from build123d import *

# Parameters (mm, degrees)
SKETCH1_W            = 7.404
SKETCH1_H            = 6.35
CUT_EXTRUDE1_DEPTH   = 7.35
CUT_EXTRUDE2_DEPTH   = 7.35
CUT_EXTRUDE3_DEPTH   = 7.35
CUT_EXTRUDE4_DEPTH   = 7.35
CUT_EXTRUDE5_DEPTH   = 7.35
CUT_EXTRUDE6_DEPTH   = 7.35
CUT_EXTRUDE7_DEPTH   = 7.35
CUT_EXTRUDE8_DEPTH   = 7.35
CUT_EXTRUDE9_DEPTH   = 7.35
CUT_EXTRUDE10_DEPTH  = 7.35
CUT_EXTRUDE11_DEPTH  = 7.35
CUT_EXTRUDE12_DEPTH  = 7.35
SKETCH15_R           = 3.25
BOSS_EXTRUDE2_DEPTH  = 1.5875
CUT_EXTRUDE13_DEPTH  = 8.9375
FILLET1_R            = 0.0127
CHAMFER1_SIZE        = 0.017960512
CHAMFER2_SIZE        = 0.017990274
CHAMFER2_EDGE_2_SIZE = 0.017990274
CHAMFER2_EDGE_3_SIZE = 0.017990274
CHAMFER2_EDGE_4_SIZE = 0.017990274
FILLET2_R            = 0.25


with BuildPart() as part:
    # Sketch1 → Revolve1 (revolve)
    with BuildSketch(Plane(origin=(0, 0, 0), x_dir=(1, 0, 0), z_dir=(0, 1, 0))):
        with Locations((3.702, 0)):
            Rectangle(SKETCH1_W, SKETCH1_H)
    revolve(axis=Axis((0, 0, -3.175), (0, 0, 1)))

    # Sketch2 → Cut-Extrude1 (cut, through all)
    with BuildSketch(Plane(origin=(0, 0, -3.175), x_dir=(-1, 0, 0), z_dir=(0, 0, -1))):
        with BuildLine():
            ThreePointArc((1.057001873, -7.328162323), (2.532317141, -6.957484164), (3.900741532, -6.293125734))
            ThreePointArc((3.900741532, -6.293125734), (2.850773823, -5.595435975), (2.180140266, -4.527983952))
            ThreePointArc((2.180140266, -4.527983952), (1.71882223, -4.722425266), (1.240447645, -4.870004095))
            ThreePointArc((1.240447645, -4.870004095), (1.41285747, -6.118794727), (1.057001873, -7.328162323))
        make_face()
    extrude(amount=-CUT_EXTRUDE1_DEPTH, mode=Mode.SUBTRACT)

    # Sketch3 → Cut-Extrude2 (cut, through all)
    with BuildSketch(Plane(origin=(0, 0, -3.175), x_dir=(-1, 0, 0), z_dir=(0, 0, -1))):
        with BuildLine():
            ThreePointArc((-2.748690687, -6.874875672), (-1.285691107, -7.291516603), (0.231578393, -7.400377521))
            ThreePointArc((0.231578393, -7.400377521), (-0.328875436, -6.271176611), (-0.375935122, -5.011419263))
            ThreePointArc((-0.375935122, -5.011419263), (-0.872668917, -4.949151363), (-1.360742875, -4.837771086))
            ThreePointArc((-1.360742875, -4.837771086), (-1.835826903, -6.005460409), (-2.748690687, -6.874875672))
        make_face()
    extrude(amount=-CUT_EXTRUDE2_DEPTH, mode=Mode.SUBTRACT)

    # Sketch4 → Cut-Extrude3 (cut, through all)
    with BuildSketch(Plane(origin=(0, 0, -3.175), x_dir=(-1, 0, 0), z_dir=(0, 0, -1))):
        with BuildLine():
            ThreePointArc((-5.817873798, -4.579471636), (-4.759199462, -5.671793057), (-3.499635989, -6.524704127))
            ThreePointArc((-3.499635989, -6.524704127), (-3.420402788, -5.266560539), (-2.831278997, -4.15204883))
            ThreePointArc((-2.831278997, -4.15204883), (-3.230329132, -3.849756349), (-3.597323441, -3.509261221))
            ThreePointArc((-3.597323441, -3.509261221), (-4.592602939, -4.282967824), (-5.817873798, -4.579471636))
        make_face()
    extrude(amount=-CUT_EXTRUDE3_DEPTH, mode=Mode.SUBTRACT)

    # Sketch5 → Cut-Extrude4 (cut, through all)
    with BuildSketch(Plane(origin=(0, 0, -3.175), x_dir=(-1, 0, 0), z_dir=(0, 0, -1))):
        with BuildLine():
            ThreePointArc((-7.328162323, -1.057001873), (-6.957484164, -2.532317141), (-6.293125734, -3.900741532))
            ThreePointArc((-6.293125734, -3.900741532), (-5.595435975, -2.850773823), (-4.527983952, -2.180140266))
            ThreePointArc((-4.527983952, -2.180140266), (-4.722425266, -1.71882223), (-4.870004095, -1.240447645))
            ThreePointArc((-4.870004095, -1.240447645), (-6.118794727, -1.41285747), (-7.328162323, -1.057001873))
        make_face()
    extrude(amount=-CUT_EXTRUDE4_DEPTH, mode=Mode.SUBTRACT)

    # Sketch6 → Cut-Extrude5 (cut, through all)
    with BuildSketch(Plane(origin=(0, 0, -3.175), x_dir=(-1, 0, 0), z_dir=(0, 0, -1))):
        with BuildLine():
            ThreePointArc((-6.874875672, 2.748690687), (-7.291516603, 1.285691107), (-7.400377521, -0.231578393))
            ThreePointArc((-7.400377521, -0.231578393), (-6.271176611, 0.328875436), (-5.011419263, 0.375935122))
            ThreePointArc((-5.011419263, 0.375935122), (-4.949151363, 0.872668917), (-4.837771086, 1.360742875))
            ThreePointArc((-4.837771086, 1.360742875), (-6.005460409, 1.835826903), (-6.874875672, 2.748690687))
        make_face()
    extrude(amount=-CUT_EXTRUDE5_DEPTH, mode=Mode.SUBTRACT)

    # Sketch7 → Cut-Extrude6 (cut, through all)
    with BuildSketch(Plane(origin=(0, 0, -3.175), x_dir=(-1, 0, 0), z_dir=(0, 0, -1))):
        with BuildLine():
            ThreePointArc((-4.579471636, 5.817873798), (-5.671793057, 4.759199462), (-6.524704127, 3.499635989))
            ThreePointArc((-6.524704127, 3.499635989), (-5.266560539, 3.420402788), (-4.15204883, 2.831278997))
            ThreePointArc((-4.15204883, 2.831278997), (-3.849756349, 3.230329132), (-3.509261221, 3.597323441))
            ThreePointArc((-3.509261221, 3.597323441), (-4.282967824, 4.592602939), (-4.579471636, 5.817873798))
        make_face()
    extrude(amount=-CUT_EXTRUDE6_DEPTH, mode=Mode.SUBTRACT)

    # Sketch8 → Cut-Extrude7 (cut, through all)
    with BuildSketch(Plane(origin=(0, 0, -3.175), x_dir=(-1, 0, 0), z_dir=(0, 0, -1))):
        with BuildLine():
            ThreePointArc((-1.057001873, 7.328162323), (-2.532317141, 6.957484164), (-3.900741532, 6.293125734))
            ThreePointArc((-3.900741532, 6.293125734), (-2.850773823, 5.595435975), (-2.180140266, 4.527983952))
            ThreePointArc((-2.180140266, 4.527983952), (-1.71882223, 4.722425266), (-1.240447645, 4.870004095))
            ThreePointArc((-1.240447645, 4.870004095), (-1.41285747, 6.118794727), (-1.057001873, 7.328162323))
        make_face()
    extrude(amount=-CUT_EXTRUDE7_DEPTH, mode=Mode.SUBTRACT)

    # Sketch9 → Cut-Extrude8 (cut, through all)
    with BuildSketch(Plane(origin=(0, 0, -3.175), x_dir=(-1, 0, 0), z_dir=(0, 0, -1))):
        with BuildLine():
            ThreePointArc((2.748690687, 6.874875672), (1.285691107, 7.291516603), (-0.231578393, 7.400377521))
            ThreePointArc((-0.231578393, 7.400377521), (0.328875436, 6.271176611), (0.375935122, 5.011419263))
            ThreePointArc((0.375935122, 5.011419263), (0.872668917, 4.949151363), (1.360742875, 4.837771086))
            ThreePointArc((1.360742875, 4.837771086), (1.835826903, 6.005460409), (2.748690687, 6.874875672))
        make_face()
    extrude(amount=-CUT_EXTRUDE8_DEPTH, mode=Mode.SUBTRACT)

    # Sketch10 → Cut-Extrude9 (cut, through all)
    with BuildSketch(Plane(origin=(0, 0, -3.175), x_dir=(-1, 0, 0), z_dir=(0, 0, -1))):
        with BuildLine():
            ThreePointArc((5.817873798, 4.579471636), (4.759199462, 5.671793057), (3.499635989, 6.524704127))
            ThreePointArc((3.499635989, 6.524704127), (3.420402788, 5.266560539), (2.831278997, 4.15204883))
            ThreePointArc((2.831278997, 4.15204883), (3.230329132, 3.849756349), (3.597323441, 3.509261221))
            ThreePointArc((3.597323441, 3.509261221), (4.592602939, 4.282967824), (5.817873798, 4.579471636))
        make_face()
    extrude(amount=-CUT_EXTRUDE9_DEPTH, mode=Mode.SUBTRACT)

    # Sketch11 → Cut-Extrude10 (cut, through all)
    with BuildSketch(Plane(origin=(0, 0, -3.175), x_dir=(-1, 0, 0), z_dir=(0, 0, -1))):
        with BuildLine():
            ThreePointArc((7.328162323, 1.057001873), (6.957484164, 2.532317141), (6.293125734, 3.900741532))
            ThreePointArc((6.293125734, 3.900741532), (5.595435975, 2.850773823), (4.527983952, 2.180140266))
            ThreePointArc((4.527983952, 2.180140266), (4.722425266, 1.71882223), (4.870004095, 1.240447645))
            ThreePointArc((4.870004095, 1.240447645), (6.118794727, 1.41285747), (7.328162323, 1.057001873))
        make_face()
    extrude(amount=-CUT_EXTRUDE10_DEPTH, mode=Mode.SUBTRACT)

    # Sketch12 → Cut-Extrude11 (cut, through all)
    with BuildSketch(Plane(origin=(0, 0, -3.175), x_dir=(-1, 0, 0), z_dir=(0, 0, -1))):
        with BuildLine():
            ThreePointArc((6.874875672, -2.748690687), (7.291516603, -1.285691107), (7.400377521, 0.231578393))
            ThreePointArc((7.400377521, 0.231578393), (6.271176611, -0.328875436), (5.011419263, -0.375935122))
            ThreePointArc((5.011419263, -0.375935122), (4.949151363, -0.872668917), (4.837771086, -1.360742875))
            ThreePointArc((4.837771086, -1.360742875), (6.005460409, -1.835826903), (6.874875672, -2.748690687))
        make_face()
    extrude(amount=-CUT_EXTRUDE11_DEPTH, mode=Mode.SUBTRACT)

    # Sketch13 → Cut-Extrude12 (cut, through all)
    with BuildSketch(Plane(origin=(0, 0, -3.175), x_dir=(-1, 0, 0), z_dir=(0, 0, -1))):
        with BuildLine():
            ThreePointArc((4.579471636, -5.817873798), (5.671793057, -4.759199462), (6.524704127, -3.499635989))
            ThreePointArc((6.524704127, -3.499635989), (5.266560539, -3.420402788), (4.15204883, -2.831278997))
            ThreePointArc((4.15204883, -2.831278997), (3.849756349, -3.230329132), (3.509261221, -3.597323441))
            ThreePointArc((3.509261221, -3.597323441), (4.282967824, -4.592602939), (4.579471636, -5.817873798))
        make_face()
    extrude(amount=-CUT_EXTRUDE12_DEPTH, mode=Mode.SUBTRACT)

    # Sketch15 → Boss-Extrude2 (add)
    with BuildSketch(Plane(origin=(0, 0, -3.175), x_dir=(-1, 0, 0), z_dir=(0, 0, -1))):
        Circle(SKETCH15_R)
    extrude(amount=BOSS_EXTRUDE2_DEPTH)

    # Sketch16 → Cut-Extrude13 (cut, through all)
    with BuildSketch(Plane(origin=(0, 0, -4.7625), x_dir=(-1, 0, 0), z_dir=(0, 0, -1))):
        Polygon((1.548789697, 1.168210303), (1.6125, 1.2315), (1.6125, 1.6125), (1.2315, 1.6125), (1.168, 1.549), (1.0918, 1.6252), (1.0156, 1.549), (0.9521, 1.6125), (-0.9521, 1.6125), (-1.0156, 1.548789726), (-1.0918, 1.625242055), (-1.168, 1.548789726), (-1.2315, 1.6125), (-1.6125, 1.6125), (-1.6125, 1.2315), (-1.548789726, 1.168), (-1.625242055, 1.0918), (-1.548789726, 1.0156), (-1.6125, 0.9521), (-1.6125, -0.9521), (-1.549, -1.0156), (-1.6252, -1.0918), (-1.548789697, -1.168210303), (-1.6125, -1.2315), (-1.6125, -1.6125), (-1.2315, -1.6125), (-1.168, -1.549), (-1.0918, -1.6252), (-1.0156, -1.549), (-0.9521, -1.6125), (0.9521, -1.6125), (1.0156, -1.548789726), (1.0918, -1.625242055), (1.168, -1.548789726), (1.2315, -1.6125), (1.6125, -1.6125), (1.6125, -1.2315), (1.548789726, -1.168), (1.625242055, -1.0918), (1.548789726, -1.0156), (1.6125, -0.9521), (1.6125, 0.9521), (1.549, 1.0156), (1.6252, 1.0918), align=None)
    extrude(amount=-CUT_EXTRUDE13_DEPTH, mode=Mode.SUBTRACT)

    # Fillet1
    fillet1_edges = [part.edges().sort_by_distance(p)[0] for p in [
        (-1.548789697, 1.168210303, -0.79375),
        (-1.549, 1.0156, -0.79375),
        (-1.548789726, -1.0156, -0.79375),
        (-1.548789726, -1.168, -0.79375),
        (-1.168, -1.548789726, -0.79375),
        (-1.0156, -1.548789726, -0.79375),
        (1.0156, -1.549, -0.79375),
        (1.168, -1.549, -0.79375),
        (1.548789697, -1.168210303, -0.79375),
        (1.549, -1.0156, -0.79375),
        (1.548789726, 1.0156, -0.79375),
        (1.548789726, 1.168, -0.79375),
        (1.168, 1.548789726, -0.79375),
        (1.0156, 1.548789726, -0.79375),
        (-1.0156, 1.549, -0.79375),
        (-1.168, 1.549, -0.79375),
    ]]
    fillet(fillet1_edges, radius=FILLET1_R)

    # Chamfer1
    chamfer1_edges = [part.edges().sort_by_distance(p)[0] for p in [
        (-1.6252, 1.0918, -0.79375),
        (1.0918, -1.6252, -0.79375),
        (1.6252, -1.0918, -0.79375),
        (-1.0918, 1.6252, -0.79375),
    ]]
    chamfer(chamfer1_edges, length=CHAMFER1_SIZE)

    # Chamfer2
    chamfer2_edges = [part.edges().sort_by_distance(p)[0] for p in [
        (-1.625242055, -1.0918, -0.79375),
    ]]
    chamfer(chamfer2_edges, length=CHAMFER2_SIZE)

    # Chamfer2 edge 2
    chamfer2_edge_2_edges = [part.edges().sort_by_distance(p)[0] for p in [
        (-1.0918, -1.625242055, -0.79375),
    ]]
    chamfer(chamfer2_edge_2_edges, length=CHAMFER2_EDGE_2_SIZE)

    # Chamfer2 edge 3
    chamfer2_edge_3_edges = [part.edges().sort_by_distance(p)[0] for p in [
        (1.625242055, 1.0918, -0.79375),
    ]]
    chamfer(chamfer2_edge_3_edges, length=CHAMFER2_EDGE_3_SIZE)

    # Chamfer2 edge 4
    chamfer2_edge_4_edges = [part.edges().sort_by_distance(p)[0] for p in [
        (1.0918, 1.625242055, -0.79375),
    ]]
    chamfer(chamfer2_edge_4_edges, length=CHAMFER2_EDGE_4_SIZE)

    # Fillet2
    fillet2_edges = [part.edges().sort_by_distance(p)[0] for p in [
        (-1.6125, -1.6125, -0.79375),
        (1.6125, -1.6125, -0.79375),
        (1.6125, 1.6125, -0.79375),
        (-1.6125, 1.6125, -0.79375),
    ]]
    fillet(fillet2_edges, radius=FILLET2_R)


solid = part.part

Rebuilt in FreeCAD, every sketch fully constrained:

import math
import FreeCAD as App
import Part
import Sketcher
Q = App.Units.Quantity


def edges_at(feature, points):
    """Names of the edges that pass closest to the given points."""
    edges = feature.Shape.Edges
    near = lambda p: min(range(len(edges)), key=lambda i: edges[i].distToShape(Part.Vertex(*p))[0])
    return sorted({f"Edge{near(p) + 1}" for p in points})

doc = App.newDocument("Part")
params = doc.addObject("Spreadsheet::Sheet", "Params")
for row, (alias, value) in enumerate([
    ("sketch1_height", "0.25 in"),
    ("revolution_angle", "360 deg"),
    ("pad1_length", "0.0625 in"),
    ("sketch15_width", "0.015 in"),
    ("fillet_radius", "0.0005 in"),
    ("chamfer_size", "0.017961 mm"),
    ("chamfer2_size", "0.01799 mm"),
    ("chamfer3_size", "0.01799 mm"),
    ("chamfer4_size", "0.01799 mm"),
    ("chamfer5_size", "0.01799 mm"),
    ("fillet2_radius", "0.25 mm"),
], start=1):
    params.set(f"A{row}", alias)
    params.set(f"B{row}", "=" + value)
    params.setAlias(f"B{row}", alias)

body = doc.addObject("PartDesign::Body", "Body")

# Sketch on XZ plane
sketch1 = body.newObject("Sketcher::SketchObject", "Sketch")
sketch1.AttachmentSupport = (doc.getObject("XZ_Plane"), [""])
sketch1.MapMode = "FlatFace"
sketch1.addGeometry(Part.LineSegment(App.Vector(0, -3, 0), App.Vector(0, 3, 0)), False)
sketch1.addGeometry(Part.LineSegment(App.Vector(0, 3, 0), App.Vector(7, 3, 0)), False)
sketch1.addGeometry(Part.LineSegment(App.Vector(7, 3, 0), App.Vector(7, -3, 0)), False)
sketch1.addGeometry(Part.LineSegment(App.Vector(7, -3, 0), App.Vector(0, -3, 0)), False)
sketch1.addConstraint(Sketcher.Constraint("Coincident", 0, 2, 1, 1))
sketch1.addConstraint(Sketcher.Constraint("Coincident", 1, 2, 2, 1))
sketch1.addConstraint(Sketcher.Constraint("Coincident", 2, 2, 3, 1))
sketch1.addConstraint(Sketcher.Constraint("Coincident", 3, 2, 0, 1))
sketch1.addConstraint(Sketcher.Constraint("Vertical", 0))
sketch1.addConstraint(Sketcher.Constraint("Horizontal", 1))
sketch1.addConstraint(Sketcher.Constraint("Vertical", 2))
sketch1.addConstraint(Sketcher.Constraint("Horizontal", 3))
sketch1.addConstraint(Sketcher.Constraint("Symmetric", 0, 2, 3, 2, -1, 1))
sketch1.addConstraint(Sketcher.Constraint("DistanceY", 0, 1, 0, 2, Q("0.25 in")))
sketch1.addConstraint(Sketcher.Constraint("DistanceX", 1, 1, 1, 2, Q("7.404 mm")))
sketch1.setExpression("Constraints[9]", "Params.sketch1_height")
revolution = body.newObject("PartDesign::Revolution", "Revolution")
revolution.Profile = sketch1
revolution.ReferenceAxis = (sketch1, ["V_Axis"])
revolution.setExpression("Angle", "Params.revolution_angle")

# Sketch on XY plane
sketch2 = body.newObject("Sketcher::SketchObject", "Sketch001")
sketch2.AttachmentSupport = (doc.getObject("XY_Plane"), [""])
sketch2.MapMode = "FlatFace"
sketch2.AttachmentOffset = App.Placement(App.Vector(0, 0, -0.125 * 25.4), App.Rotation())
sketch2.addGeometry(Part.ArcOfCircle(Part.Circle(App.Vector(0, 0, 0), App.Vector(0, 0, 1), 7.4), math.radians(-122), math.radians(-98)), False)
sketch2.addGeometry(Part.ArcOfCircle(Part.Circle(App.Vector(-5, -3.5, 0), App.Vector(0, 0, 1), 3), math.radians(-69), math.radians(-20)), False)
sketch2.addGeometry(Part.ArcOfCircle(Part.Circle(App.Vector(0, 0, 0), App.Vector(0, 0, 1), 5), math.radians(-115.71), math.radians(-104.29)), False)
sketch2.addGeometry(Part.ArcOfCircle(Part.Circle(App.Vector(1.6, -5.9, 0), App.Vector(0, 0, 1), 3), math.radians(160), math.radians(209)), False)
sketch2.addConstraint(Sketcher.Constraint("Coincident", 0, 1, 1, 1))
sketch2.addConstraint(Sketcher.Constraint("Coincident", 1, 2, 2, 1))
sketch2.addConstraint(Sketcher.Constraint("Coincident", 2, 2, 3, 1))
sketch2.addConstraint(Sketcher.Constraint("Coincident", 3, 2, 0, 2))
sketch2.addConstraint(Sketcher.Constraint("Coincident", 0, 3, -1, 1))
sketch2.addConstraint(Sketcher.Constraint("Coincident", 2, 3, -1, 1))
sketch2.addConstraint(Sketcher.Constraint("Equal", 1, 3))
sketch2.addConstraint(Sketcher.Constraint("Radius", 0, Q("7.404 mm")))
sketch2.addConstraint(Sketcher.Constraint("Radius", 1, Q("3 mm")))
sketch2.addConstraint(Sketcher.Constraint("Radius", 2, Q("5.0255 mm")))
sketch2.addConstraint(Sketcher.Constraint("DistanceX", 3, 2, -1, 1, Q("1.057002 mm")))
sketch2.addConstraint(Sketcher.Constraint("DistanceX", 0, 1, 1, 2, Q("1.720601 mm")))
sketch2.addConstraint(Sketcher.Constraint("DistanceX", 0, 1, -1, 1, Q("3.900742 mm")))
sketch2.addConstraint(Sketcher.Constraint("DistanceX", 1, 3, 3, 3, Q("6.577848 mm")))
pocket1 = body.newObject("PartDesign::Pocket", "Pocket")
pocket1.Profile = sketch2
pocket1.Type = "ThroughAll"
pocket1.Reversed = True

# Sketch on XY plane
sketch3 = body.newObject("Sketcher::SketchObject", "Sketch002")
sketch3.AttachmentSupport = (doc.getObject("XY_Plane"), [""])
sketch3.MapMode = "FlatFace"
sketch3.AttachmentOffset = App.Placement(App.Vector(0, 0, -0.125 * 25.4), App.Rotation())
sketch3.addGeometry(Part.ArcOfCircle(Part.Circle(App.Vector(0, 0, 0), App.Vector(0, 0, 1), 7.4), math.radians(-92), math.radians(-68)), False)
sketch3.addGeometry(Part.ArcOfCircle(Part.Circle(App.Vector(-2.6, -5.5, 0), App.Vector(0, 0, 1), 3), math.radians(-39), math.radians(10)), False)
sketch3.addGeometry(Part.ArcOfCircle(Part.Circle(App.Vector(0, 0, 0), App.Vector(0, 0, 1), 5), math.radians(-85.71), math.radians(-74.29)), False)
sketch3.addGeometry(Part.ArcOfCircle(Part.Circle(App.Vector(4.3, -4.3, 0), App.Vector(0, 0, 1), 3), math.radians(-170), math.radians(-121)), False)
sketch3.addConstraint(Sketcher.Constraint("Coincident", 0, 1, 1, 1))
sketch3.addConstraint(Sketcher.Constraint("Coincident", 1, 2, 2, 1))
sketch3.addConstraint(Sketcher.Constraint("Coincident", 2, 2, 3, 1))
sketch3.addConstraint(Sketcher.Constraint("Coincident", 3, 2, 0, 2))
sketch3.addConstraint(Sketcher.Constraint("Coincident", 0, 3, -1, 1))
sketch3.addConstraint(Sketcher.Constraint("Coincident", 2, 3, -1, 1))
sketch3.addConstraint(Sketcher.Constraint("Equal", 1, 3))
sketch3.addConstraint(Sketcher.Constraint("Radius", 0, Q("7.404 mm")))
sketch3.addConstraint(Sketcher.Constraint("Radius", 1, Q("3 mm")))
sketch3.addConstraint(Sketcher.Constraint("Radius", 2, Q("5.0255 mm")))
sketch3.addConstraint(Sketcher.Constraint("DistanceY", 1, 2, -1, 1, Q("0.1973 in")))
sketch3.addConstraint(Sketcher.Constraint("DistanceY", 2, 2, 3, 3, Q("0.521501 mm")))
sketch3.addConstraint(Sketcher.Constraint("DistanceY", 0, 1, 3, 2, Q("0.525502 mm")))
sketch3.addConstraint(Sketcher.Constraint("DistanceY", 3, 3, -1, 1, Q("4.31627 mm")))
pocket2 = body.newObject("PartDesign::Pocket", "Pocket001")
pocket2.Profile = sketch3
pocket2.Type = "ThroughAll"
pocket2.Reversed = True

# Sketch on XY plane
sketch4 = body.newObject("Sketcher::SketchObject", "Sketch003")
sketch4.AttachmentSupport = (doc.getObject("XY_Plane"), [""])
sketch4.MapMode = "FlatFace"
sketch4.AttachmentOffset = App.Placement(App.Vector(0, 0, -0.125 * 25.4), App.Rotation())
sketch4.addGeometry(Part.ArcOfCircle(Part.Circle(App.Vector(0, 0, 0), App.Vector(0, 0, 1), 7.4), math.radians(-62), math.radians(-38)), False)
sketch4.addGeometry(Part.ArcOfCircle(Part.Circle(App.Vector(0.5, -6.1, 0), App.Vector(0, 0, 1), 3), math.radians(-9), math.radians(40)), False)
sketch4.addGeometry(Part.ArcOfCircle(Part.Circle(App.Vector(0, 0, 0), App.Vector(0, 0, 1), 5), math.radians(-55.71), math.radians(-44.29)), False)
sketch4.addGeometry(Part.ArcOfCircle(Part.Circle(App.Vector(5.9, -1.6, 0), App.Vector(0, 0, 1), 3), math.radians(-140), math.radians(-91)), False)
sketch4.addConstraint(Sketcher.Constraint("Coincident", 0, 1, 1, 1))
sketch4.addConstraint(Sketcher.Constraint("Coincident", 1, 2, 2, 1))
sketch4.addConstraint(Sketcher.Constraint("Coincident", 2, 2, 3, 1))
sketch4.addConstraint(Sketcher.Constraint("Coincident", 3, 2, 0, 2))
sketch4.addConstraint(Sketcher.Constraint("Coincident", 0, 3, -1, 1))
sketch4.addConstraint(Sketcher.Constraint("Coincident", 2, 3, -1, 1))
sketch4.addConstraint(Sketcher.Constraint("Equal", 1, 3))
sketch4.addConstraint(Sketcher.Constraint("Radius", 0, Q("7.404 mm")))
sketch4.addConstraint(Sketcher.Constraint("Radius", 1, Q("3 mm")))
sketch4.addConstraint(Sketcher.Constraint("Radius", 2, Q("5.0255 mm")))
sketch4.addConstraint(Sketcher.Constraint("DistanceY", 1, 3, -1, 1, Q("6.079979 mm")))
sketch4.addConstraint(Sketcher.Constraint("DistanceX", -1, 1, 1, 2, Q("2.831279 mm")))
sketch4.addConstraint(Sketcher.Constraint("DistanceY", 2, 2, -1, 1, Q("3.509261 mm")))
sketch4.addConstraint(Sketcher.Constraint("DistanceY", 3, 2, -1, 1, Q("4.579472 mm")))
pocket3 = body.newObject("PartDesign::Pocket", "Pocket002")
pocket3.Profile = sketch4
pocket3.Type = "ThroughAll"
pocket3.Reversed = True

# Sketch on XY plane
sketch5 = body.newObject("Sketcher::SketchObject", "Sketch004")
sketch5.AttachmentSupport = (doc.getObject("XY_Plane"), [""])
sketch5.MapMode = "FlatFace"
sketch5.AttachmentOffset = App.Placement(App.Vector(0, 0, -0.125 * 25.4), App.Rotation())
sketch5.addGeometry(Part.ArcOfCircle(Part.Circle(App.Vector(0, 0, 0), App.Vector(0, 0, 1), 7.4), math.radians(-32), math.radians(-8)), False)
sketch5.addGeometry(Part.ArcOfCircle(Part.Circle(App.Vector(3.5, -5, 0), App.Vector(0, 0, 1), 3), math.radians(21), math.radians(70)), False)
sketch5.addGeometry(Part.ArcOfCircle(Part.Circle(App.Vector(0, 0, 0), App.Vector(0, 0, 1), 5), math.radians(-25.71), math.radians(-14.29)), False)
sketch5.addGeometry(Part.ArcOfCircle(Part.Circle(App.Vector(5.9, 1.6, 0), App.Vector(0, 0, 1), 3), math.radians(-110), math.radians(-61)), False)
sketch5.addConstraint(Sketcher.Constraint("Coincident", 0, 1, 1, 1))
sketch5.addConstraint(Sketcher.Constraint("Coincident", 1, 2, 2, 1))
sketch5.addConstraint(Sketcher.Constraint("Coincident", 2, 2, 3, 1))
sketch5.addConstraint(Sketcher.Constraint("Coincident", 3, 2, 0, 2))
sketch5.addConstraint(Sketcher.Constraint("Coincident", 0, 3, -1, 1))
sketch5.addConstraint(Sketcher.Constraint("Coincident", 2, 3, -1, 1))
sketch5.addConstraint(Sketcher.Constraint("Equal", 1, 3))
sketch5.addConstraint(Sketcher.Constraint("Radius", 0, Q("7.404 mm")))
sketch5.addConstraint(Sketcher.Constraint("Radius", 1, Q("3 mm")))
sketch5.addConstraint(Sketcher.Constraint("Radius", 2, Q("5.0255 mm")))
sketch5.addConstraint(Sketcher.Constraint("DistanceY", 3, 2, -1, 1, Q("1.057002 mm")))
sketch5.addConstraint(Sketcher.Constraint("DistanceY", 0, 1, 1, 2, Q("1.720601 mm")))
sketch5.addConstraint(Sketcher.Constraint("DistanceY", 0, 1, -1, 1, Q("3.900742 mm")))
sketch5.addConstraint(Sketcher.Constraint("DistanceX", 1, 3, 3, 3, Q("2.394141 mm")))
pocket4 = body.newObject("PartDesign::Pocket", "Pocket003")
pocket4.Profile = sketch5
pocket4.Type = "ThroughAll"
pocket4.Reversed = True

# Sketch on XY plane
sketch6 = body.newObject("Sketcher::SketchObject", "Sketch005")
sketch6.AttachmentSupport = (doc.getObject("XY_Plane"), [""])
sketch6.MapMode = "FlatFace"
sketch6.AttachmentOffset = App.Placement(App.Vector(0, 0, -0.125 * 25.4), App.Rotation())
sketch6.addGeometry(Part.ArcOfCircle(Part.Circle(App.Vector(0, 0, 0), App.Vector(0, 0, 1), 7.4), math.radians(-2), math.radians(22)), False)
sketch6.addGeometry(Part.ArcOfCircle(Part.Circle(App.Vector(5.5, -2.6, 0), App.Vector(0, 0, 1), 3), math.radians(51), math.radians(100)), False)
sketch6.addGeometry(Part.ArcOfCircle(Part.Circle(App.Vector(0, 0, 0), App.Vector(0, 0, 1), 5), math.radians(4.29), math.radians(15.71)), False)
sketch6.addGeometry(Part.ArcOfCircle(Part.Circle(App.Vector(4.3, 4.3, 0), App.Vector(0, 0, 1), 3), math.radians(-80), math.radians(-31)), False)
sketch6.addConstraint(Sketcher.Constraint("Coincident", 0, 1, 1, 1))
sketch6.addConstraint(Sketcher.Constraint("Coincident", 1, 2, 2, 1))
sketch6.addConstraint(Sketcher.Constraint("Coincident", 2, 2, 3, 1))
sketch6.addConstraint(Sketcher.Constraint("Coincident", 3, 2, 0, 2))
sketch6.addConstraint(Sketcher.Constraint("Coincident", 0, 3, -1, 1))
sketch6.addConstraint(Sketcher.Constraint("Coincident", 2, 3, -1, 1))
sketch6.addConstraint(Sketcher.Constraint("Equal", 1, 3))
sketch6.addConstraint(Sketcher.Constraint("Radius", 0, Q("7.404 mm")))
sketch6.addConstraint(Sketcher.Constraint("Radius", 1, Q("3 mm")))
sketch6.addConstraint(Sketcher.Constraint("Radius", 2, Q("5.0255 mm")))
sketch6.addConstraint(Sketcher.Constraint("DistanceX", -1, 1, 1, 2, Q("0.1973 in")))
sketch6.addConstraint(Sketcher.Constraint("DistanceX", 3, 3, 2, 2, Q("0.521501 mm")))
sketch6.addConstraint(Sketcher.Constraint("DistanceX", 3, 2, 0, 1, Q("0.525502 mm")))
sketch6.addConstraint(Sketcher.Constraint("DistanceX", -1, 1, 3, 3, Q("4.31627 mm")))
pocket5 = body.newObject("PartDesign::Pocket", "Pocket004")
pocket5.Profile = sketch6
pocket5.Type = "ThroughAll"
pocket5.Reversed = True

# Sketch on XY plane
sketch7 = body.newObject("Sketcher::SketchObject", "Sketch006")
sketch7.AttachmentSupport = (doc.getObject("XY_Plane"), [""])
sketch7.MapMode = "FlatFace"
sketch7.AttachmentOffset = App.Placement(App.Vector(0, 0, -0.125 * 25.4), App.Rotation())
sketch7.addGeometry(Part.ArcOfCircle(Part.Circle(App.Vector(0, 0, 0), App.Vector(0, 0, 1), 7.4), math.radians(28), math.radians(52)), False)
sketch7.addGeometry(Part.ArcOfCircle(Part.Circle(App.Vector(6.1, 0.5, 0), App.Vector(0, 0, 1), 3), math.radians(81), math.radians(130)), False)
sketch7.addGeometry(Part.ArcOfCircle(Part.Circle(App.Vector(0, 0, 0), App.Vector(0, 0, 1), 5), math.radians(34.29), math.radians(45.71)), False)
sketch7.addGeometry(Part.ArcOfCircle(Part.Circle(App.Vector(1.6, 5.9, 0), App.Vector(0, 0, 1), 3), math.radians(-50), math.radians(-1)), False)
sketch7.addConstraint(Sketcher.Constraint("Coincident", 0, 1, 1, 1))
sketch7.addConstraint(Sketcher.Constraint("Coincident", 1, 2, 2, 1))
sketch7.addConstraint(Sketcher.Constraint("Coincident", 2, 2, 3, 1))
sketch7.addConstraint(Sketcher.Constraint("Coincident", 3, 2, 0, 2))
sketch7.addConstraint(Sketcher.Constraint("Coincident", 0, 3, -1, 1))
sketch7.addConstraint(Sketcher.Constraint("Coincident", 2, 3, -1, 1))
sketch7.addConstraint(Sketcher.Constraint("Equal", 1, 3))
sketch7.addConstraint(Sketcher.Constraint("Radius", 0, Q("7.404 mm")))
sketch7.addConstraint(Sketcher.Constraint("Radius", 1, Q("3 mm")))
sketch7.addConstraint(Sketcher.Constraint("Radius", 2, Q("5.0255 mm")))
sketch7.addConstraint(Sketcher.Constraint("DistanceX", -1, 1, 1, 3, Q("6.079979 mm")))
sketch7.addConstraint(Sketcher.Constraint("DistanceX", -1, 1, 1, 2, Q("4.152049 mm")))
sketch7.addConstraint(Sketcher.Constraint("DistanceX", -1, 1, 2, 2, Q("3.509261 mm")))
sketch7.addConstraint(Sketcher.Constraint("DistanceX", -1, 1, 3, 2, Q("4.579472 mm")))
pocket6 = body.newObject("PartDesign::Pocket", "Pocket005")
pocket6.Profile = sketch7
pocket6.Type = "ThroughAll"
pocket6.Reversed = True

# Sketch on XY plane
sketch8 = body.newObject("Sketcher::SketchObject", "Sketch007")
sketch8.AttachmentSupport = (doc.getObject("XY_Plane"), [""])
sketch8.MapMode = "FlatFace"
sketch8.AttachmentOffset = App.Placement(App.Vector(0, 0, -0.125 * 25.4), App.Rotation())
sketch8.addGeometry(Part.ArcOfCircle(Part.Circle(App.Vector(0, 0, 0), App.Vector(0, 0, 1), 7.4), math.radians(58), math.radians(82)), False)
sketch8.addGeometry(Part.ArcOfCircle(Part.Circle(App.Vector(5, 3.5, 0), App.Vector(0, 0, 1), 3), math.radians(111), math.radians(160)), False)
sketch8.addGeometry(Part.ArcOfCircle(Part.Circle(App.Vector(0, 0, 0), App.Vector(0, 0, 1), 5), math.radians(64.29), math.radians(75.71)), False)
sketch8.addGeometry(Part.ArcOfCircle(Part.Circle(App.Vector(-1.6, 5.9, 0), App.Vector(0, 0, 1), 3), math.radians(-20), math.radians(29)), False)
sketch8.addConstraint(Sketcher.Constraint("Coincident", 0, 1, 1, 1))
sketch8.addConstraint(Sketcher.Constraint("Coincident", 1, 2, 2, 1))
sketch8.addConstraint(Sketcher.Constraint("Coincident", 2, 2, 3, 1))
sketch8.addConstraint(Sketcher.Constraint("Coincident", 3, 2, 0, 2))
sketch8.addConstraint(Sketcher.Constraint("Coincident", 0, 3, -1, 1))
sketch8.addConstraint(Sketcher.Constraint("Coincident", 2, 3, -1, 1))
sketch8.addConstraint(Sketcher.Constraint("Equal", 1, 3))
sketch8.addConstraint(Sketcher.Constraint("Radius", 0, Q("7.404 mm")))
sketch8.addConstraint(Sketcher.Constraint("Radius", 1, Q("3 mm")))
sketch8.addConstraint(Sketcher.Constraint("Radius", 2, Q("5.0255 mm")))
sketch8.addConstraint(Sketcher.Constraint("DistanceX", -1, 1, 3, 2, Q("1.057002 mm")))
sketch8.addConstraint(Sketcher.Constraint("DistanceX", 1, 2, 0, 1, Q("1.720601 mm")))
sketch8.addConstraint(Sketcher.Constraint("DistanceX", -1, 1, 0, 1, Q("3.900742 mm")))
sketch8.addConstraint(Sketcher.Constraint("DistanceX", 3, 3, 1, 3, Q("6.577848 mm")))
pocket7 = body.newObject("PartDesign::Pocket", "Pocket006")
pocket7.Profile = sketch8
pocket7.Type = "ThroughAll"
pocket7.Reversed = True

# Sketch on XY plane
sketch9 = body.newObject("Sketcher::SketchObject", "Sketch008")
sketch9.AttachmentSupport = (doc.getObject("XY_Plane"), [""])
sketch9.MapMode = "FlatFace"
sketch9.AttachmentOffset = App.Placement(App.Vector(0, 0, -0.125 * 25.4), App.Rotation())
sketch9.addGeometry(Part.ArcOfCircle(Part.Circle(App.Vector(0, 0, 0), App.Vector(0, 0, 1), 7.4), math.radians(88), math.radians(112)), False)
sketch9.addGeometry(Part.ArcOfCircle(Part.Circle(App.Vector(2.6, 5.5, 0), App.Vector(0, 0, 1), 3), math.radians(141), math.radians(190)), False)
sketch9.addGeometry(Part.ArcOfCircle(Part.Circle(App.Vector(0, 0, 0), App.Vector(0, 0, 1), 5), math.radians(94.29), math.radians(105.71)), False)
sketch9.addGeometry(Part.ArcOfCircle(Part.Circle(App.Vector(-4.3, 4.3, 0), App.Vector(0, 0, 1), 3), math.radians(10), math.radians(59)), False)
sketch9.addConstraint(Sketcher.Constraint("Coincident", 0, 1, 1, 1))
sketch9.addConstraint(Sketcher.Constraint("Coincident", 1, 2, 2, 1))
sketch9.addConstraint(Sketcher.Constraint("Coincident", 2, 2, 3, 1))
sketch9.addConstraint(Sketcher.Constraint("Coincident", 3, 2, 0, 2))
sketch9.addConstraint(Sketcher.Constraint("Coincident", 0, 3, -1, 1))
sketch9.addConstraint(Sketcher.Constraint("Coincident", 2, 3, -1, 1))
sketch9.addConstraint(Sketcher.Constraint("Equal", 1, 3))
sketch9.addConstraint(Sketcher.Constraint("Radius", 0, Q("7.404 mm")))
sketch9.addConstraint(Sketcher.Constraint("Radius", 1, Q("3 mm")))
sketch9.addConstraint(Sketcher.Constraint("Radius", 2, Q("5.0255 mm")))
sketch9.addConstraint(Sketcher.Constraint("DistanceY", -1, 1, 1, 2, Q("0.1973 in")))
sketch9.addConstraint(Sketcher.Constraint("DistanceY", 3, 3, 2, 2, Q("0.521501 mm")))
sketch9.addConstraint(Sketcher.Constraint("DistanceY", 3, 2, 0, 1, Q("0.525502 mm")))
sketch9.addConstraint(Sketcher.Constraint("DistanceY", -1, 1, 3, 3, Q("4.31627 mm")))
pocket8 = body.newObject("PartDesign::Pocket", "Pocket007")
pocket8.Profile = sketch9
pocket8.Type = "ThroughAll"
pocket8.Reversed = True

# Sketch on XY plane
sketch10 = body.newObject("Sketcher::SketchObject", "Sketch009")
sketch10.AttachmentSupport = (doc.getObject("XY_Plane"), [""])
sketch10.MapMode = "FlatFace"
sketch10.AttachmentOffset = App.Placement(App.Vector(0, 0, -0.125 * 25.4), App.Rotation())
sketch10.addGeometry(Part.ArcOfCircle(Part.Circle(App.Vector(0, 0, 0), App.Vector(0, 0, 1), 7.4), math.radians(118), math.radians(142)), False)
sketch10.addGeometry(Part.ArcOfCircle(Part.Circle(App.Vector(-0.5, 6.1, 0), App.Vector(0, 0, 1), 3), math.radians(171), math.radians(220)), False)
sketch10.addGeometry(Part.ArcOfCircle(Part.Circle(App.Vector(0, 0, 0), App.Vector(0, 0, 1), 5), math.radians(124.29), math.radians(135.71)), False)
sketch10.addGeometry(Part.ArcOfCircle(Part.Circle(App.Vector(-5.9, 1.6, 0), App.Vector(0, 0, 1), 3), math.radians(40), math.radians(89)), False)
sketch10.addConstraint(Sketcher.Constraint("Coincident", 0, 1, 1, 1))
sketch10.addConstraint(Sketcher.Constraint("Coincident", 1, 2, 2, 1))
sketch10.addConstraint(Sketcher.Constraint("Coincident", 2, 2, 3, 1))
sketch10.addConstraint(Sketcher.Constraint("Coincident", 3, 2, 0, 2))
sketch10.addConstraint(Sketcher.Constraint("Coincident", 0, 3, -1, 1))
sketch10.addConstraint(Sketcher.Constraint("Coincident", 2, 3, -1, 1))
sketch10.addConstraint(Sketcher.Constraint("Equal", 1, 3))
sketch10.addConstraint(Sketcher.Constraint("Radius", 0, Q("7.404 mm")))
sketch10.addConstraint(Sketcher.Constraint("Radius", 1, Q("3 mm")))
sketch10.addConstraint(Sketcher.Constraint("Radius", 2, Q("5.0255 mm")))
sketch10.addConstraint(Sketcher.Constraint("DistanceY", -1, 1, 1, 3, Q("6.079979 mm")))
sketch10.addConstraint(Sketcher.Constraint("DistanceX", 1, 2, -1, 1, Q("2.831279 mm")))
sketch10.addConstraint(Sketcher.Constraint("DistanceY", -1, 1, 2, 2, Q("3.509261 mm")))
sketch10.addConstraint(Sketcher.Constraint("DistanceY", -1, 1, 3, 2, Q("4.579472 mm")))
pocket9 = body.newObject("PartDesign::Pocket", "Pocket008")
pocket9.Profile = sketch10
pocket9.Type = "ThroughAll"
pocket9.Reversed = True

# Sketch on XY plane
sketch11 = body.newObject("Sketcher::SketchObject", "Sketch010")
sketch11.AttachmentSupport = (doc.getObject("XY_Plane"), [""])
sketch11.MapMode = "FlatFace"
sketch11.AttachmentOffset = App.Placement(App.Vector(0, 0, -0.125 * 25.4), App.Rotation())
sketch11.addGeometry(Part.ArcOfCircle(Part.Circle(App.Vector(0, 0, 0), App.Vector(0, 0, 1), 7.4), math.radians(148), math.radians(172)), False)
sketch11.addGeometry(Part.ArcOfCircle(Part.Circle(App.Vector(-3.5, 5, 0), App.Vector(0, 0, 1), 3), math.radians(-159), math.radians(-110)), False)
sketch11.addGeometry(Part.ArcOfCircle(Part.Circle(App.Vector(0, 0, 0), App.Vector(0, 0, 1), 5), math.radians(154.29), math.radians(165.71)), False)
sketch11.addGeometry(Part.ArcOfCircle(Part.Circle(App.Vector(-5.9, -1.6, 0), App.Vector(0, 0, 1), 3), math.radians(70), math.radians(119)), False)
sketch11.addConstraint(Sketcher.Constraint("Coincident", 0, 1, 1, 1))
sketch11.addConstraint(Sketcher.Constraint("Coincident", 1, 2, 2, 1))
sketch11.addConstraint(Sketcher.Constraint("Coincident", 2, 2, 3, 1))
sketch11.addConstraint(Sketcher.Constraint("Coincident", 3, 2, 0, 2))
sketch11.addConstraint(Sketcher.Constraint("Coincident", 0, 3, -1, 1))
sketch11.addConstraint(Sketcher.Constraint("Coincident", 2, 3, -1, 1))
sketch11.addConstraint(Sketcher.Constraint("Equal", 1, 3))
sketch11.addConstraint(Sketcher.Constraint("Radius", 0, Q("7.404 mm")))
sketch11.addConstraint(Sketcher.Constraint("Radius", 1, Q("3 mm")))
sketch11.addConstraint(Sketcher.Constraint("Radius", 2, Q("5.0255 mm")))
sketch11.addConstraint(Sketcher.Constraint("DistanceY", -1, 1, 3, 2, Q("1.057002 mm")))
sketch11.addConstraint(Sketcher.Constraint("DistanceY", 1, 2, 0, 1, Q("1.720601 mm")))
sketch11.addConstraint(Sketcher.Constraint("DistanceY", -1, 1, 0, 1, Q("3.900742 mm")))
sketch11.addConstraint(Sketcher.Constraint("DistanceX", 3, 3, 1, 3, Q("2.394141 mm")))
pocket10 = body.newObject("PartDesign::Pocket", "Pocket009")
pocket10.Profile = sketch11
pocket10.Type = "ThroughAll"
pocket10.Reversed = True

# Sketch on XY plane
sketch12 = body.newObject("Sketcher::SketchObject", "Sketch011")
sketch12.AttachmentSupport = (doc.getObject("XY_Plane"), [""])
sketch12.MapMode = "FlatFace"
sketch12.AttachmentOffset = App.Placement(App.Vector(0, 0, -0.125 * 25.4), App.Rotation())
sketch12.addGeometry(Part.ArcOfCircle(Part.Circle(App.Vector(0, 0, 0), App.Vector(0, 0, 1), 7.4), math.radians(178), math.radians(202)), False)
sketch12.addGeometry(Part.ArcOfCircle(Part.Circle(App.Vector(-5.5, 2.6, 0), App.Vector(0, 0, 1), 3), math.radians(-129), math.radians(-80)), False)
sketch12.addGeometry(Part.ArcOfCircle(Part.Circle(App.Vector(0, 0, 0), App.Vector(0, 0, 1), 5), math.radians(-175.71), math.radians(-164.29)), False)
sketch12.addGeometry(Part.ArcOfCircle(Part.Circle(App.Vector(-4.3, -4.3, 0), App.Vector(0, 0, 1), 3), math.radians(100), math.radians(149)), False)
sketch12.addConstraint(Sketcher.Constraint("Coincident", 0, 1, 1, 1))
sketch12.addConstraint(Sketcher.Constraint("Coincident", 1, 2, 2, 1))
sketch12.addConstraint(Sketcher.Constraint("Coincident", 2, 2, 3, 1))
sketch12.addConstraint(Sketcher.Constraint("Coincident", 3, 2, 0, 2))
sketch12.addConstraint(Sketcher.Constraint("Coincident", 0, 3, -1, 1))
sketch12.addConstraint(Sketcher.Constraint("Coincident", 2, 3, -1, 1))
sketch12.addConstraint(Sketcher.Constraint("Equal", 1, 3))
sketch12.addConstraint(Sketcher.Constraint("Radius", 0, Q("7.404 mm")))
sketch12.addConstraint(Sketcher.Constraint("Radius", 1, Q("3 mm")))
sketch12.addConstraint(Sketcher.Constraint("Radius", 2, Q("5.0255 mm")))
sketch12.addConstraint(Sketcher.Constraint("DistanceX", 1, 2, -1, 1, Q("0.1973 in")))
sketch12.addConstraint(Sketcher.Constraint("DistanceX", 2, 2, 3, 3, Q("0.521501 mm")))
sketch12.addConstraint(Sketcher.Constraint("DistanceX", 0, 1, 3, 2, Q("0.525502 mm")))
sketch12.addConstraint(Sketcher.Constraint("DistanceX", 3, 3, -1, 1, Q("4.31627 mm")))
pocket11 = body.newObject("PartDesign::Pocket", "Pocket010")
pocket11.Profile = sketch12
pocket11.Type = "ThroughAll"
pocket11.Reversed = True

# Sketch on XY plane
sketch13 = body.newObject("Sketcher::SketchObject", "Sketch012")
sketch13.AttachmentSupport = (doc.getObject("XY_Plane"), [""])
sketch13.MapMode = "FlatFace"
sketch13.AttachmentOffset = App.Placement(App.Vector(0, 0, -0.125 * 25.4), App.Rotation())
sketch13.addGeometry(Part.ArcOfCircle(Part.Circle(App.Vector(0, 0, 0), App.Vector(0, 0, 1), 7.4), math.radians(-152), math.radians(-128)), False)
sketch13.addGeometry(Part.ArcOfCircle(Part.Circle(App.Vector(-6.1, -0.5, 0), App.Vector(0, 0, 1), 3), math.radians(-99), math.radians(-50)), False)
sketch13.addGeometry(Part.ArcOfCircle(Part.Circle(App.Vector(0, 0, 0), App.Vector(0, 0, 1), 5), math.radians(-145.71), math.radians(-134.29)), False)
sketch13.addGeometry(Part.ArcOfCircle(Part.Circle(App.Vector(-1.6, -5.9, 0), App.Vector(0, 0, 1), 3), math.radians(130), math.radians(179)), False)
sketch13.addConstraint(Sketcher.Constraint("Coincident", 0, 1, 1, 1))
sketch13.addConstraint(Sketcher.Constraint("Coincident", 1, 2, 2, 1))
sketch13.addConstraint(Sketcher.Constraint("Coincident", 2, 2, 3, 1))
sketch13.addConstraint(Sketcher.Constraint("Coincident", 3, 2, 0, 2))
sketch13.addConstraint(Sketcher.Constraint("Coincident", 0, 3, -1, 1))
sketch13.addConstraint(Sketcher.Constraint("Coincident", 2, 3, -1, 1))
sketch13.addConstraint(Sketcher.Constraint("Equal", 1, 3))
sketch13.addConstraint(Sketcher.Constraint("Radius", 0, Q("7.404 mm")))
sketch13.addConstraint(Sketcher.Constraint("Radius", 1, Q("3 mm")))
sketch13.addConstraint(Sketcher.Constraint("Radius", 2, Q("5.0255 mm")))
sketch13.addConstraint(Sketcher.Constraint("DistanceX", 1, 3, -1, 1, Q("6.079979 mm")))
sketch13.addConstraint(Sketcher.Constraint("DistanceX", 1, 2, -1, 1, Q("4.152049 mm")))
sketch13.addConstraint(Sketcher.Constraint("DistanceX", 2, 2, -1, 1, Q("3.509261 mm")))
sketch13.addConstraint(Sketcher.Constraint("DistanceX", 3, 2, -1, 1, Q("4.579472 mm")))
pocket12 = body.newObject("PartDesign::Pocket", "Pocket011")
pocket12.Profile = sketch13
pocket12.Type = "ThroughAll"
pocket12.Reversed = True

# Sketch on XY plane
sketch14 = body.newObject("Sketcher::SketchObject", "Sketch013")
sketch14.AttachmentSupport = (doc.getObject("XY_Plane"), [""])
sketch14.MapMode = "FlatFace"
sketch14.AttachmentOffset = App.Placement(App.Vector(0, 0, -0.125 * 25.4), App.Rotation())
sketch14.addGeometry(Part.Circle(App.Vector(0, 0, 0), App.Vector(0, 0, 1), 3.2), False)
sketch14.addConstraint(Sketcher.Constraint("Coincident", 0, 3, -1, 1))
sketch14.addConstraint(Sketcher.Constraint("Diameter", 0, Q("6.5 mm")))
pad1 = body.newObject("PartDesign::Pad", "Pad")
pad1.Profile = sketch14
pad1.setExpression("Length", "Params.pad1_length")
pad1.Reversed = True

# Sketch on XY plane
sketch15 = body.newObject("Sketcher::SketchObject", "Sketch014")
sketch15.AttachmentSupport = (doc.getObject("XY_Plane"), [""])
sketch15.MapMode = "FlatFace"
sketch15.AttachmentOffset = App.Placement(App.Vector(0, 0, -0.1875 * 25.4), App.Rotation())
sketch15.addGeometry(Part.LineSegment(App.Vector(-1.55, 1.17, 0), App.Vector(-1.61, 1.23, 0)), False)
sketch15.addGeometry(Part.LineSegment(App.Vector(-1.61, 1.23, 0), App.Vector(-1.61, 1.61, 0)), False)
sketch15.addGeometry(Part.LineSegment(App.Vector(-1.61, 1.61, 0), App.Vector(-1.23, 1.61, 0)), False)
sketch15.addGeometry(Part.LineSegment(App.Vector(-1.23, 1.61, 0), App.Vector(-1.17, 1.55, 0)), False)
sketch15.addGeometry(Part.LineSegment(App.Vector(-1.17, 1.55, 0), App.Vector(-1.09, 1.63, 0)), False)
sketch15.addGeometry(Part.LineSegment(App.Vector(-1.09, 1.63, 0), App.Vector(-1.02, 1.55, 0)), False)
sketch15.addGeometry(Part.LineSegment(App.Vector(-1.02, 1.55, 0), App.Vector(-0.95, 1.61, 0)), False)
sketch15.addGeometry(Part.LineSegment(App.Vector(-0.95, 1.61, 0), App.Vector(0.95, 1.61, 0)), False)
sketch15.addGeometry(Part.LineSegment(App.Vector(0.95, 1.61, 0), App.Vector(1.02, 1.55, 0)), False)
sketch15.addGeometry(Part.LineSegment(App.Vector(1.02, 1.55, 0), App.Vector(1.09, 1.63, 0)), False)
sketch15.addGeometry(Part.LineSegment(App.Vector(1.09, 1.63, 0), App.Vector(1.17, 1.55, 0)), False)
sketch15.addGeometry(Part.LineSegment(App.Vector(1.17, 1.55, 0), App.Vector(1.23, 1.61, 0)), False)
sketch15.addGeometry(Part.LineSegment(App.Vector(1.23, 1.61, 0), App.Vector(1.61, 1.61, 0)), False)
sketch15.addGeometry(Part.LineSegment(App.Vector(1.61, 1.61, 0), App.Vector(1.61, 1.23, 0)), False)
sketch15.addGeometry(Part.LineSegment(App.Vector(1.61, 1.23, 0), App.Vector(1.55, 1.17, 0)), False)
sketch15.addGeometry(Part.LineSegment(App.Vector(1.55, 1.17, 0), App.Vector(1.63, 1.09, 0)), False)
sketch15.addGeometry(Part.LineSegment(App.Vector(1.63, 1.09, 0), App.Vector(1.55, 1.02, 0)), False)
sketch15.addGeometry(Part.LineSegment(App.Vector(1.55, 1.02, 0), App.Vector(1.61, 0.95, 0)), False)
sketch15.addGeometry(Part.LineSegment(App.Vector(1.61, 0.95, 0), App.Vector(1.61, -0.95, 0)), False)
sketch15.addGeometry(Part.LineSegment(App.Vector(1.61, -0.95, 0), App.Vector(1.55, -1.02, 0)), False)
sketch15.addGeometry(Part.LineSegment(App.Vector(1.55, -1.02, 0), App.Vector(1.63, -1.09, 0)), False)
sketch15.addGeometry(Part.LineSegment(App.Vector(1.63, -1.09, 0), App.Vector(1.55, -1.17, 0)), False)
sketch15.addGeometry(Part.LineSegment(App.Vector(1.55, -1.17, 0), App.Vector(1.61, -1.23, 0)), False)
sketch15.addGeometry(Part.LineSegment(App.Vector(1.61, -1.23, 0), App.Vector(1.61, -1.61, 0)), False)
sketch15.addGeometry(Part.LineSegment(App.Vector(1.61, -1.61, 0), App.Vector(1.23, -1.61, 0)), False)
sketch15.addGeometry(Part.LineSegment(App.Vector(1.23, -1.61, 0), App.Vector(1.17, -1.55, 0)), False)
sketch15.addGeometry(Part.LineSegment(App.Vector(1.17, -1.55, 0), App.Vector(1.09, -1.63, 0)), False)
sketch15.addGeometry(Part.LineSegment(App.Vector(1.09, -1.63, 0), App.Vector(1.02, -1.55, 0)), False)
sketch15.addGeometry(Part.LineSegment(App.Vector(1.02, -1.55, 0), App.Vector(0.95, -1.61, 0)), False)
sketch15.addGeometry(Part.LineSegment(App.Vector(0.95, -1.61, 0), App.Vector(-0.95, -1.61, 0)), False)
sketch15.addGeometry(Part.LineSegment(App.Vector(-0.95, -1.61, 0), App.Vector(-1.02, -1.55, 0)), False)
sketch15.addGeometry(Part.LineSegment(App.Vector(-1.02, -1.55, 0), App.Vector(-1.09, -1.63, 0)), False)
sketch15.addGeometry(Part.LineSegment(App.Vector(-1.09, -1.63, 0), App.Vector(-1.17, -1.55, 0)), False)
sketch15.addGeometry(Part.LineSegment(App.Vector(-1.17, -1.55, 0), App.Vector(-1.23, -1.61, 0)), False)
sketch15.addGeometry(Part.LineSegment(App.Vector(-1.23, -1.61, 0), App.Vector(-1.61, -1.61, 0)), False)
sketch15.addGeometry(Part.LineSegment(App.Vector(-1.61, -1.61, 0), App.Vector(-1.61, -1.23, 0)), False)
sketch15.addGeometry(Part.LineSegment(App.Vector(-1.61, -1.23, 0), App.Vector(-1.55, -1.17, 0)), False)
sketch15.addGeometry(Part.LineSegment(App.Vector(-1.55, -1.17, 0), App.Vector(-1.63, -1.09, 0)), False)
sketch15.addGeometry(Part.LineSegment(App.Vector(-1.63, -1.09, 0), App.Vector(-1.55, -1.02, 0)), False)
sketch15.addGeometry(Part.LineSegment(App.Vector(-1.55, -1.02, 0), App.Vector(-1.61, -0.95, 0)), False)
sketch15.addGeometry(Part.LineSegment(App.Vector(-1.61, -0.95, 0), App.Vector(-1.61, 0.95, 0)), False)
sketch15.addGeometry(Part.LineSegment(App.Vector(-1.61, 0.95, 0), App.Vector(-1.55, 1.02, 0)), False)
sketch15.addGeometry(Part.LineSegment(App.Vector(-1.55, 1.02, 0), App.Vector(-1.63, 1.09, 0)), False)
sketch15.addGeometry(Part.LineSegment(App.Vector(-1.63, 1.09, 0), App.Vector(-1.55, 1.17, 0)), False)
sketch15.addConstraint(Sketcher.Constraint("Coincident", 0, 2, 1, 1))
sketch15.addConstraint(Sketcher.Constraint("Coincident", 1, 2, 2, 1))
sketch15.addConstraint(Sketcher.Constraint("Coincident", 2, 2, 3, 1))
sketch15.addConstraint(Sketcher.Constraint("Coincident", 3, 2, 4, 1))
sketch15.addConstraint(Sketcher.Constraint("Coincident", 4, 2, 5, 1))
sketch15.addConstraint(Sketcher.Constraint("Coincident", 5, 2, 6, 1))
sketch15.addConstraint(Sketcher.Constraint("Coincident", 6, 2, 7, 1))
sketch15.addConstraint(Sketcher.Constraint("Coincident", 7, 2, 8, 1))
sketch15.addConstraint(Sketcher.Constraint("Coincident", 8, 2, 9, 1))
sketch15.addConstraint(Sketcher.Constraint("Coincident", 9, 2, 10, 1))
sketch15.addConstraint(Sketcher.Constraint("Coincident", 10, 2, 11, 1))
sketch15.addConstraint(Sketcher.Constraint("Coincident", 11, 2, 12, 1))
sketch15.addConstraint(Sketcher.Constraint("Coincident", 12, 2, 13, 1))
sketch15.addConstraint(Sketcher.Constraint("Coincident", 13, 2, 14, 1))
sketch15.addConstraint(Sketcher.Constraint("Coincident", 14, 2, 15, 1))
sketch15.addConstraint(Sketcher.Constraint("Coincident", 15, 2, 16, 1))
sketch15.addConstraint(Sketcher.Constraint("Coincident", 16, 2, 17, 1))
sketch15.addConstraint(Sketcher.Constraint("Coincident", 17, 2, 18, 1))
sketch15.addConstraint(Sketcher.Constraint("Coincident", 18, 2, 19, 1))
sketch15.addConstraint(Sketcher.Constraint("Coincident", 19, 2, 20, 1))
sketch15.addConstraint(Sketcher.Constraint("Coincident", 20, 2, 21, 1))
sketch15.addConstraint(Sketcher.Constraint("Coincident", 21, 2, 22, 1))
sketch15.addConstraint(Sketcher.Constraint("Coincident", 22, 2, 23, 1))
sketch15.addConstraint(Sketcher.Constraint("Coincident", 23, 2, 24, 1))
sketch15.addConstraint(Sketcher.Constraint("Coincident", 24, 2, 25, 1))
sketch15.addConstraint(Sketcher.Constraint("Coincident", 25, 2, 26, 1))
sketch15.addConstraint(Sketcher.Constraint("Coincident", 26, 2, 27, 1))
sketch15.addConstraint(Sketcher.Constraint("Coincident", 27, 2, 28, 1))
sketch15.addConstraint(Sketcher.Constraint("Coincident", 28, 2, 29, 1))
sketch15.addConstraint(Sketcher.Constraint("Coincident", 29, 2, 30, 1))
sketch15.addConstraint(Sketcher.Constraint("Coincident", 30, 2, 31, 1))
sketch15.addConstraint(Sketcher.Constraint("Coincident", 31, 2, 32, 1))
sketch15.addConstraint(Sketcher.Constraint("Coincident", 32, 2, 33, 1))
sketch15.addConstraint(Sketcher.Constraint("Coincident", 33, 2, 34, 1))
sketch15.addConstraint(Sketcher.Constraint("Coincident", 34, 2, 35, 1))
sketch15.addConstraint(Sketcher.Constraint("Coincident", 35, 2, 36, 1))
sketch15.addConstraint(Sketcher.Constraint("Coincident", 36, 2, 37, 1))
sketch15.addConstraint(Sketcher.Constraint("Coincident", 37, 2, 38, 1))
sketch15.addConstraint(Sketcher.Constraint("Coincident", 38, 2, 39, 1))
sketch15.addConstraint(Sketcher.Constraint("Coincident", 39, 2, 40, 1))
sketch15.addConstraint(Sketcher.Constraint("Coincident", 40, 2, 41, 1))
sketch15.addConstraint(Sketcher.Constraint("Coincident", 41, 2, 42, 1))
sketch15.addConstraint(Sketcher.Constraint("Coincident", 42, 2, 43, 1))
sketch15.addConstraint(Sketcher.Constraint("Coincident", 43, 2, 0, 1))
sketch15.addConstraint(Sketcher.Constraint("Vertical", 1))
sketch15.addConstraint(Sketcher.Constraint("Horizontal", 2))
sketch15.addConstraint(Sketcher.Constraint("Horizontal", 7))
sketch15.addConstraint(Sketcher.Constraint("Horizontal", 12))
sketch15.addConstraint(Sketcher.Constraint("Vertical", 13))
sketch15.addConstraint(Sketcher.Constraint("Vertical", 18))
sketch15.addConstraint(Sketcher.Constraint("Vertical", 23))
sketch15.addConstraint(Sketcher.Constraint("Horizontal", 24))
sketch15.addConstraint(Sketcher.Constraint("Horizontal", 29))
sketch15.addConstraint(Sketcher.Constraint("Horizontal", 34))
sketch15.addConstraint(Sketcher.Constraint("Vertical", 35))
sketch15.addConstraint(Sketcher.Constraint("Vertical", 40))
sketch15.addConstraint(Sketcher.Constraint("Symmetric", 0, 2, 22, 2, -1, 1))
sketch15.addConstraint(Sketcher.Constraint("Symmetric", 2, 2, 24, 2, -1, 1))
sketch15.addConstraint(Sketcher.Constraint("Symmetric", 3, 2, 25, 2, -1, 1))
sketch15.addConstraint(Sketcher.Constraint("Symmetric", 4, 2, 26, 2, -1, 1))
sketch15.addConstraint(Sketcher.Constraint("Symmetric", 5, 2, 27, 2, -1, 1))
sketch15.addConstraint(Sketcher.Constraint("Symmetric", 6, 2, 28, 2, -1, 1))
sketch15.addConstraint(Sketcher.Constraint("Symmetric", 8, 2, 30, 2, -1, 1))
sketch15.addConstraint(Sketcher.Constraint("Symmetric", 9, 2, 31, 2, -1, 1))
sketch15.addConstraint(Sketcher.Constraint("Symmetric", 10, 2, 32, 2, -1, 1))
sketch15.addConstraint(Sketcher.Constraint("Symmetric", 11, 2, 33, 2, -1, 1))
sketch15.addConstraint(Sketcher.Constraint("Symmetric", 13, 2, 35, 2, -1, 1))
sketch15.addConstraint(Sketcher.Constraint("Symmetric", 14, 2, 36, 2, -1, 1))
sketch15.addConstraint(Sketcher.Constraint("Symmetric", 15, 2, 37, 2, -1, 1))
sketch15.addConstraint(Sketcher.Constraint("Symmetric", 16, 2, 38, 2, -1, 1))
sketch15.addConstraint(Sketcher.Constraint("Symmetric", 17, 2, 39, 2, -1, 1))
sketch15.addConstraint(Sketcher.Constraint("Symmetric", 19, 2, 41, 2, -1, 1))
sketch15.addConstraint(Sketcher.Constraint("Symmetric", 20, 2, 42, 2, -1, 1))
sketch15.addConstraint(Sketcher.Constraint("Symmetric", 21, 2, 43, 2, -1, 1))
sketch15.addConstraint(Sketcher.Constraint("Symmetric", 2, 2, 11, 2, -2))
sketch15.addConstraint(Sketcher.Constraint("Symmetric", 0, 2, 13, 2, -2))
sketch15.addConstraint(Sketcher.Constraint("Perpendicular", 3, 4))
sketch15.addConstraint(Sketcher.Constraint("Perpendicular", 4, 5))
sketch15.addConstraint(Sketcher.Constraint("Perpendicular", 5, 6))
sketch15.addConstraint(Sketcher.Constraint("Parallel", 8, 10))
sketch15.addConstraint(Sketcher.Constraint("Parallel", 9, 11))
sketch15.addConstraint(Sketcher.Constraint("Perpendicular", 10, 14))
sketch15.addConstraint(Sketcher.Constraint("Perpendicular", 11, 15))
sketch15.addConstraint(Sketcher.Constraint("Parallel", 14, 16))
sketch15.addConstraint(Sketcher.Constraint("Parallel", 15, 17))
sketch15.addConstraint(Sketcher.Constraint("Parallel", 6, 19))
sketch15.addConstraint(Sketcher.Constraint("Perpendicular", 19, 20))
sketch15.addConstraint(Sketcher.Constraint("Perpendicular", 20, 21))
sketch15.addConstraint(Sketcher.Constraint("Perpendicular", 16, 30))
sketch15.addConstraint(Sketcher.Constraint("Parallel", 28, 41))
sketch15.addConstraint(Sketcher.Constraint("Horizontal", 3, 2, 5, 2))
sketch15.addConstraint(Sketcher.Constraint("Horizontal", 2, 2, 6, 2))
sketch15.addConstraint(Sketcher.Constraint("Horizontal", 8, 2, 10, 2))
sketch15.addConstraint(Sketcher.Constraint("Horizontal", 20, 2, 37, 2))
sketch15.addConstraint(Sketcher.Constraint("Horizontal", 19, 2, 38, 2))
sketch15.addConstraint(Sketcher.Constraint("Horizontal", 18, 2, 39, 2))
sketch15.addConstraint(Sketcher.Constraint("Vertical", 14, 2, 16, 2))
sketch15.addConstraint(Sketcher.Constraint("Vertical", 13, 2, 17, 2))
sketch15.addConstraint(Sketcher.Constraint("Vertical", 16, 2, 21, 2))
sketch15.addConstraint(Sketcher.Constraint("Vertical", 10, 2, 25, 2))
sketch15.addConstraint(Sketcher.Constraint("Vertical", 9, 2, 26, 2))
sketch15.addConstraint(Sketcher.Constraint("Vertical", 8, 2, 27, 2))
sketch15.addConstraint(Sketcher.Constraint("Equal", 34, 1))
sketch15.addConstraint(Sketcher.Constraint("Equal", 29, 18))
sketch15.addConstraint(Sketcher.Constraint("Equal", 0, 3))
sketch15.addConstraint(Sketcher.Constraint("Equal", 4, 5))
sketch15.addConstraint(Sketcher.Constraint("Equal", 10, 15))
sketch15.addConstraint(Sketcher.Constraint("DistanceX", 2, 1, 2, 2, Q("0.015 in")))
sketch15.addConstraint(Sketcher.Constraint("DistanceX", 3, 2, 4, 2, Q("0.003 in")))
sketch15.addConstraint(Sketcher.Constraint("DistanceX", 2, 2, 6, 2, Q("0.011 in")))
sketch15.addConstraint(Sketcher.Constraint("DistanceX", 7, 1, 7, 2, Q("1.9042 mm")))
sketch15.addConstraint(Sketcher.Constraint("Distance", 8, Q("0.089951 mm")))
sketch15.setExpression("Constraints[107]", "Params.sketch15_width")
pocket13 = body.newObject("PartDesign::Pocket", "Pocket012")
pocket13.Profile = sketch15
pocket13.Type = "ThroughAll"
pocket13.Reversed = True
doc.recompute()

fillet = body.newObject("PartDesign::Fillet", "Fillet")
fillet.Base = (pocket13, edges_at(pocket13, [
    (-1.549, 1.168, -0.794),
    (-1.549, 1.016, -0.794),
    (-1.549, -1.016, -0.794),
    (-1.549, -1.168, -0.794),
    (-1.168, -1.549, -0.794),
    (-1.016, -1.549, -0.794),
    (1.016, -1.549, -0.794),
    (1.168, -1.549, -0.794),
    (1.549, -1.168, -0.794),
    (1.549, -1.016, -0.794),
    (1.549, 1.016, -0.794),
    (1.549, 1.168, -0.794),
    (1.168, 1.549, -0.794),
    (1.016, 1.549, -0.794),
    (-1.016, 1.549, -0.794),
    (-1.168, 1.549, -0.794),
]))
fillet.setExpression("Radius", "Params.fillet_radius")
doc.recompute()

chamfer = body.newObject("PartDesign::Chamfer", "Chamfer")
chamfer.Base = (fillet, edges_at(fillet, [
    (-1.625, 1.092, -0.794),
    (1.092, -1.625, -0.794),
    (1.625, -1.092, -0.794),
    (-1.092, 1.625, -0.794),
]))
chamfer.setExpression("Size", "Params.chamfer_size")
doc.recompute()

chamfer2 = body.newObject("PartDesign::Chamfer", "Chamfer001")
chamfer2.Base = (chamfer, edges_at(chamfer, [(-1.625, -1.092, -0.794)]))
chamfer2.setExpression("Size", "Params.chamfer2_size")
doc.recompute()

chamfer3 = body.newObject("PartDesign::Chamfer", "Chamfer002")
chamfer3.Base = (chamfer2, edges_at(chamfer2, [(-1.092, -1.625, -0.794)]))
chamfer3.setExpression("Size", "Params.chamfer3_size")
doc.recompute()

chamfer4 = body.newObject("PartDesign::Chamfer", "Chamfer003")
chamfer4.Base = (chamfer3, edges_at(chamfer3, [(1.625, 1.092, -0.794)]))
chamfer4.setExpression("Size", "Params.chamfer4_size")
doc.recompute()

chamfer5 = body.newObject("PartDesign::Chamfer", "Chamfer004")
chamfer5.Base = (chamfer4, edges_at(chamfer4, [(1.092, 1.625, -0.794)]))
chamfer5.setExpression("Size", "Params.chamfer5_size")
doc.recompute()

fillet2 = body.newObject("PartDesign::Fillet", "Fillet001")
fillet2.Base = (chamfer5, edges_at(chamfer5, [
    (-1.613, -1.613, -0.794),
    (1.613, -1.613, -0.794),
    (1.613, 1.613, -0.794),
    (-1.613, 1.613, -0.794),
]))
fillet2.setExpression("Radius", "Params.fillet2_radius")

doc.recompute()
